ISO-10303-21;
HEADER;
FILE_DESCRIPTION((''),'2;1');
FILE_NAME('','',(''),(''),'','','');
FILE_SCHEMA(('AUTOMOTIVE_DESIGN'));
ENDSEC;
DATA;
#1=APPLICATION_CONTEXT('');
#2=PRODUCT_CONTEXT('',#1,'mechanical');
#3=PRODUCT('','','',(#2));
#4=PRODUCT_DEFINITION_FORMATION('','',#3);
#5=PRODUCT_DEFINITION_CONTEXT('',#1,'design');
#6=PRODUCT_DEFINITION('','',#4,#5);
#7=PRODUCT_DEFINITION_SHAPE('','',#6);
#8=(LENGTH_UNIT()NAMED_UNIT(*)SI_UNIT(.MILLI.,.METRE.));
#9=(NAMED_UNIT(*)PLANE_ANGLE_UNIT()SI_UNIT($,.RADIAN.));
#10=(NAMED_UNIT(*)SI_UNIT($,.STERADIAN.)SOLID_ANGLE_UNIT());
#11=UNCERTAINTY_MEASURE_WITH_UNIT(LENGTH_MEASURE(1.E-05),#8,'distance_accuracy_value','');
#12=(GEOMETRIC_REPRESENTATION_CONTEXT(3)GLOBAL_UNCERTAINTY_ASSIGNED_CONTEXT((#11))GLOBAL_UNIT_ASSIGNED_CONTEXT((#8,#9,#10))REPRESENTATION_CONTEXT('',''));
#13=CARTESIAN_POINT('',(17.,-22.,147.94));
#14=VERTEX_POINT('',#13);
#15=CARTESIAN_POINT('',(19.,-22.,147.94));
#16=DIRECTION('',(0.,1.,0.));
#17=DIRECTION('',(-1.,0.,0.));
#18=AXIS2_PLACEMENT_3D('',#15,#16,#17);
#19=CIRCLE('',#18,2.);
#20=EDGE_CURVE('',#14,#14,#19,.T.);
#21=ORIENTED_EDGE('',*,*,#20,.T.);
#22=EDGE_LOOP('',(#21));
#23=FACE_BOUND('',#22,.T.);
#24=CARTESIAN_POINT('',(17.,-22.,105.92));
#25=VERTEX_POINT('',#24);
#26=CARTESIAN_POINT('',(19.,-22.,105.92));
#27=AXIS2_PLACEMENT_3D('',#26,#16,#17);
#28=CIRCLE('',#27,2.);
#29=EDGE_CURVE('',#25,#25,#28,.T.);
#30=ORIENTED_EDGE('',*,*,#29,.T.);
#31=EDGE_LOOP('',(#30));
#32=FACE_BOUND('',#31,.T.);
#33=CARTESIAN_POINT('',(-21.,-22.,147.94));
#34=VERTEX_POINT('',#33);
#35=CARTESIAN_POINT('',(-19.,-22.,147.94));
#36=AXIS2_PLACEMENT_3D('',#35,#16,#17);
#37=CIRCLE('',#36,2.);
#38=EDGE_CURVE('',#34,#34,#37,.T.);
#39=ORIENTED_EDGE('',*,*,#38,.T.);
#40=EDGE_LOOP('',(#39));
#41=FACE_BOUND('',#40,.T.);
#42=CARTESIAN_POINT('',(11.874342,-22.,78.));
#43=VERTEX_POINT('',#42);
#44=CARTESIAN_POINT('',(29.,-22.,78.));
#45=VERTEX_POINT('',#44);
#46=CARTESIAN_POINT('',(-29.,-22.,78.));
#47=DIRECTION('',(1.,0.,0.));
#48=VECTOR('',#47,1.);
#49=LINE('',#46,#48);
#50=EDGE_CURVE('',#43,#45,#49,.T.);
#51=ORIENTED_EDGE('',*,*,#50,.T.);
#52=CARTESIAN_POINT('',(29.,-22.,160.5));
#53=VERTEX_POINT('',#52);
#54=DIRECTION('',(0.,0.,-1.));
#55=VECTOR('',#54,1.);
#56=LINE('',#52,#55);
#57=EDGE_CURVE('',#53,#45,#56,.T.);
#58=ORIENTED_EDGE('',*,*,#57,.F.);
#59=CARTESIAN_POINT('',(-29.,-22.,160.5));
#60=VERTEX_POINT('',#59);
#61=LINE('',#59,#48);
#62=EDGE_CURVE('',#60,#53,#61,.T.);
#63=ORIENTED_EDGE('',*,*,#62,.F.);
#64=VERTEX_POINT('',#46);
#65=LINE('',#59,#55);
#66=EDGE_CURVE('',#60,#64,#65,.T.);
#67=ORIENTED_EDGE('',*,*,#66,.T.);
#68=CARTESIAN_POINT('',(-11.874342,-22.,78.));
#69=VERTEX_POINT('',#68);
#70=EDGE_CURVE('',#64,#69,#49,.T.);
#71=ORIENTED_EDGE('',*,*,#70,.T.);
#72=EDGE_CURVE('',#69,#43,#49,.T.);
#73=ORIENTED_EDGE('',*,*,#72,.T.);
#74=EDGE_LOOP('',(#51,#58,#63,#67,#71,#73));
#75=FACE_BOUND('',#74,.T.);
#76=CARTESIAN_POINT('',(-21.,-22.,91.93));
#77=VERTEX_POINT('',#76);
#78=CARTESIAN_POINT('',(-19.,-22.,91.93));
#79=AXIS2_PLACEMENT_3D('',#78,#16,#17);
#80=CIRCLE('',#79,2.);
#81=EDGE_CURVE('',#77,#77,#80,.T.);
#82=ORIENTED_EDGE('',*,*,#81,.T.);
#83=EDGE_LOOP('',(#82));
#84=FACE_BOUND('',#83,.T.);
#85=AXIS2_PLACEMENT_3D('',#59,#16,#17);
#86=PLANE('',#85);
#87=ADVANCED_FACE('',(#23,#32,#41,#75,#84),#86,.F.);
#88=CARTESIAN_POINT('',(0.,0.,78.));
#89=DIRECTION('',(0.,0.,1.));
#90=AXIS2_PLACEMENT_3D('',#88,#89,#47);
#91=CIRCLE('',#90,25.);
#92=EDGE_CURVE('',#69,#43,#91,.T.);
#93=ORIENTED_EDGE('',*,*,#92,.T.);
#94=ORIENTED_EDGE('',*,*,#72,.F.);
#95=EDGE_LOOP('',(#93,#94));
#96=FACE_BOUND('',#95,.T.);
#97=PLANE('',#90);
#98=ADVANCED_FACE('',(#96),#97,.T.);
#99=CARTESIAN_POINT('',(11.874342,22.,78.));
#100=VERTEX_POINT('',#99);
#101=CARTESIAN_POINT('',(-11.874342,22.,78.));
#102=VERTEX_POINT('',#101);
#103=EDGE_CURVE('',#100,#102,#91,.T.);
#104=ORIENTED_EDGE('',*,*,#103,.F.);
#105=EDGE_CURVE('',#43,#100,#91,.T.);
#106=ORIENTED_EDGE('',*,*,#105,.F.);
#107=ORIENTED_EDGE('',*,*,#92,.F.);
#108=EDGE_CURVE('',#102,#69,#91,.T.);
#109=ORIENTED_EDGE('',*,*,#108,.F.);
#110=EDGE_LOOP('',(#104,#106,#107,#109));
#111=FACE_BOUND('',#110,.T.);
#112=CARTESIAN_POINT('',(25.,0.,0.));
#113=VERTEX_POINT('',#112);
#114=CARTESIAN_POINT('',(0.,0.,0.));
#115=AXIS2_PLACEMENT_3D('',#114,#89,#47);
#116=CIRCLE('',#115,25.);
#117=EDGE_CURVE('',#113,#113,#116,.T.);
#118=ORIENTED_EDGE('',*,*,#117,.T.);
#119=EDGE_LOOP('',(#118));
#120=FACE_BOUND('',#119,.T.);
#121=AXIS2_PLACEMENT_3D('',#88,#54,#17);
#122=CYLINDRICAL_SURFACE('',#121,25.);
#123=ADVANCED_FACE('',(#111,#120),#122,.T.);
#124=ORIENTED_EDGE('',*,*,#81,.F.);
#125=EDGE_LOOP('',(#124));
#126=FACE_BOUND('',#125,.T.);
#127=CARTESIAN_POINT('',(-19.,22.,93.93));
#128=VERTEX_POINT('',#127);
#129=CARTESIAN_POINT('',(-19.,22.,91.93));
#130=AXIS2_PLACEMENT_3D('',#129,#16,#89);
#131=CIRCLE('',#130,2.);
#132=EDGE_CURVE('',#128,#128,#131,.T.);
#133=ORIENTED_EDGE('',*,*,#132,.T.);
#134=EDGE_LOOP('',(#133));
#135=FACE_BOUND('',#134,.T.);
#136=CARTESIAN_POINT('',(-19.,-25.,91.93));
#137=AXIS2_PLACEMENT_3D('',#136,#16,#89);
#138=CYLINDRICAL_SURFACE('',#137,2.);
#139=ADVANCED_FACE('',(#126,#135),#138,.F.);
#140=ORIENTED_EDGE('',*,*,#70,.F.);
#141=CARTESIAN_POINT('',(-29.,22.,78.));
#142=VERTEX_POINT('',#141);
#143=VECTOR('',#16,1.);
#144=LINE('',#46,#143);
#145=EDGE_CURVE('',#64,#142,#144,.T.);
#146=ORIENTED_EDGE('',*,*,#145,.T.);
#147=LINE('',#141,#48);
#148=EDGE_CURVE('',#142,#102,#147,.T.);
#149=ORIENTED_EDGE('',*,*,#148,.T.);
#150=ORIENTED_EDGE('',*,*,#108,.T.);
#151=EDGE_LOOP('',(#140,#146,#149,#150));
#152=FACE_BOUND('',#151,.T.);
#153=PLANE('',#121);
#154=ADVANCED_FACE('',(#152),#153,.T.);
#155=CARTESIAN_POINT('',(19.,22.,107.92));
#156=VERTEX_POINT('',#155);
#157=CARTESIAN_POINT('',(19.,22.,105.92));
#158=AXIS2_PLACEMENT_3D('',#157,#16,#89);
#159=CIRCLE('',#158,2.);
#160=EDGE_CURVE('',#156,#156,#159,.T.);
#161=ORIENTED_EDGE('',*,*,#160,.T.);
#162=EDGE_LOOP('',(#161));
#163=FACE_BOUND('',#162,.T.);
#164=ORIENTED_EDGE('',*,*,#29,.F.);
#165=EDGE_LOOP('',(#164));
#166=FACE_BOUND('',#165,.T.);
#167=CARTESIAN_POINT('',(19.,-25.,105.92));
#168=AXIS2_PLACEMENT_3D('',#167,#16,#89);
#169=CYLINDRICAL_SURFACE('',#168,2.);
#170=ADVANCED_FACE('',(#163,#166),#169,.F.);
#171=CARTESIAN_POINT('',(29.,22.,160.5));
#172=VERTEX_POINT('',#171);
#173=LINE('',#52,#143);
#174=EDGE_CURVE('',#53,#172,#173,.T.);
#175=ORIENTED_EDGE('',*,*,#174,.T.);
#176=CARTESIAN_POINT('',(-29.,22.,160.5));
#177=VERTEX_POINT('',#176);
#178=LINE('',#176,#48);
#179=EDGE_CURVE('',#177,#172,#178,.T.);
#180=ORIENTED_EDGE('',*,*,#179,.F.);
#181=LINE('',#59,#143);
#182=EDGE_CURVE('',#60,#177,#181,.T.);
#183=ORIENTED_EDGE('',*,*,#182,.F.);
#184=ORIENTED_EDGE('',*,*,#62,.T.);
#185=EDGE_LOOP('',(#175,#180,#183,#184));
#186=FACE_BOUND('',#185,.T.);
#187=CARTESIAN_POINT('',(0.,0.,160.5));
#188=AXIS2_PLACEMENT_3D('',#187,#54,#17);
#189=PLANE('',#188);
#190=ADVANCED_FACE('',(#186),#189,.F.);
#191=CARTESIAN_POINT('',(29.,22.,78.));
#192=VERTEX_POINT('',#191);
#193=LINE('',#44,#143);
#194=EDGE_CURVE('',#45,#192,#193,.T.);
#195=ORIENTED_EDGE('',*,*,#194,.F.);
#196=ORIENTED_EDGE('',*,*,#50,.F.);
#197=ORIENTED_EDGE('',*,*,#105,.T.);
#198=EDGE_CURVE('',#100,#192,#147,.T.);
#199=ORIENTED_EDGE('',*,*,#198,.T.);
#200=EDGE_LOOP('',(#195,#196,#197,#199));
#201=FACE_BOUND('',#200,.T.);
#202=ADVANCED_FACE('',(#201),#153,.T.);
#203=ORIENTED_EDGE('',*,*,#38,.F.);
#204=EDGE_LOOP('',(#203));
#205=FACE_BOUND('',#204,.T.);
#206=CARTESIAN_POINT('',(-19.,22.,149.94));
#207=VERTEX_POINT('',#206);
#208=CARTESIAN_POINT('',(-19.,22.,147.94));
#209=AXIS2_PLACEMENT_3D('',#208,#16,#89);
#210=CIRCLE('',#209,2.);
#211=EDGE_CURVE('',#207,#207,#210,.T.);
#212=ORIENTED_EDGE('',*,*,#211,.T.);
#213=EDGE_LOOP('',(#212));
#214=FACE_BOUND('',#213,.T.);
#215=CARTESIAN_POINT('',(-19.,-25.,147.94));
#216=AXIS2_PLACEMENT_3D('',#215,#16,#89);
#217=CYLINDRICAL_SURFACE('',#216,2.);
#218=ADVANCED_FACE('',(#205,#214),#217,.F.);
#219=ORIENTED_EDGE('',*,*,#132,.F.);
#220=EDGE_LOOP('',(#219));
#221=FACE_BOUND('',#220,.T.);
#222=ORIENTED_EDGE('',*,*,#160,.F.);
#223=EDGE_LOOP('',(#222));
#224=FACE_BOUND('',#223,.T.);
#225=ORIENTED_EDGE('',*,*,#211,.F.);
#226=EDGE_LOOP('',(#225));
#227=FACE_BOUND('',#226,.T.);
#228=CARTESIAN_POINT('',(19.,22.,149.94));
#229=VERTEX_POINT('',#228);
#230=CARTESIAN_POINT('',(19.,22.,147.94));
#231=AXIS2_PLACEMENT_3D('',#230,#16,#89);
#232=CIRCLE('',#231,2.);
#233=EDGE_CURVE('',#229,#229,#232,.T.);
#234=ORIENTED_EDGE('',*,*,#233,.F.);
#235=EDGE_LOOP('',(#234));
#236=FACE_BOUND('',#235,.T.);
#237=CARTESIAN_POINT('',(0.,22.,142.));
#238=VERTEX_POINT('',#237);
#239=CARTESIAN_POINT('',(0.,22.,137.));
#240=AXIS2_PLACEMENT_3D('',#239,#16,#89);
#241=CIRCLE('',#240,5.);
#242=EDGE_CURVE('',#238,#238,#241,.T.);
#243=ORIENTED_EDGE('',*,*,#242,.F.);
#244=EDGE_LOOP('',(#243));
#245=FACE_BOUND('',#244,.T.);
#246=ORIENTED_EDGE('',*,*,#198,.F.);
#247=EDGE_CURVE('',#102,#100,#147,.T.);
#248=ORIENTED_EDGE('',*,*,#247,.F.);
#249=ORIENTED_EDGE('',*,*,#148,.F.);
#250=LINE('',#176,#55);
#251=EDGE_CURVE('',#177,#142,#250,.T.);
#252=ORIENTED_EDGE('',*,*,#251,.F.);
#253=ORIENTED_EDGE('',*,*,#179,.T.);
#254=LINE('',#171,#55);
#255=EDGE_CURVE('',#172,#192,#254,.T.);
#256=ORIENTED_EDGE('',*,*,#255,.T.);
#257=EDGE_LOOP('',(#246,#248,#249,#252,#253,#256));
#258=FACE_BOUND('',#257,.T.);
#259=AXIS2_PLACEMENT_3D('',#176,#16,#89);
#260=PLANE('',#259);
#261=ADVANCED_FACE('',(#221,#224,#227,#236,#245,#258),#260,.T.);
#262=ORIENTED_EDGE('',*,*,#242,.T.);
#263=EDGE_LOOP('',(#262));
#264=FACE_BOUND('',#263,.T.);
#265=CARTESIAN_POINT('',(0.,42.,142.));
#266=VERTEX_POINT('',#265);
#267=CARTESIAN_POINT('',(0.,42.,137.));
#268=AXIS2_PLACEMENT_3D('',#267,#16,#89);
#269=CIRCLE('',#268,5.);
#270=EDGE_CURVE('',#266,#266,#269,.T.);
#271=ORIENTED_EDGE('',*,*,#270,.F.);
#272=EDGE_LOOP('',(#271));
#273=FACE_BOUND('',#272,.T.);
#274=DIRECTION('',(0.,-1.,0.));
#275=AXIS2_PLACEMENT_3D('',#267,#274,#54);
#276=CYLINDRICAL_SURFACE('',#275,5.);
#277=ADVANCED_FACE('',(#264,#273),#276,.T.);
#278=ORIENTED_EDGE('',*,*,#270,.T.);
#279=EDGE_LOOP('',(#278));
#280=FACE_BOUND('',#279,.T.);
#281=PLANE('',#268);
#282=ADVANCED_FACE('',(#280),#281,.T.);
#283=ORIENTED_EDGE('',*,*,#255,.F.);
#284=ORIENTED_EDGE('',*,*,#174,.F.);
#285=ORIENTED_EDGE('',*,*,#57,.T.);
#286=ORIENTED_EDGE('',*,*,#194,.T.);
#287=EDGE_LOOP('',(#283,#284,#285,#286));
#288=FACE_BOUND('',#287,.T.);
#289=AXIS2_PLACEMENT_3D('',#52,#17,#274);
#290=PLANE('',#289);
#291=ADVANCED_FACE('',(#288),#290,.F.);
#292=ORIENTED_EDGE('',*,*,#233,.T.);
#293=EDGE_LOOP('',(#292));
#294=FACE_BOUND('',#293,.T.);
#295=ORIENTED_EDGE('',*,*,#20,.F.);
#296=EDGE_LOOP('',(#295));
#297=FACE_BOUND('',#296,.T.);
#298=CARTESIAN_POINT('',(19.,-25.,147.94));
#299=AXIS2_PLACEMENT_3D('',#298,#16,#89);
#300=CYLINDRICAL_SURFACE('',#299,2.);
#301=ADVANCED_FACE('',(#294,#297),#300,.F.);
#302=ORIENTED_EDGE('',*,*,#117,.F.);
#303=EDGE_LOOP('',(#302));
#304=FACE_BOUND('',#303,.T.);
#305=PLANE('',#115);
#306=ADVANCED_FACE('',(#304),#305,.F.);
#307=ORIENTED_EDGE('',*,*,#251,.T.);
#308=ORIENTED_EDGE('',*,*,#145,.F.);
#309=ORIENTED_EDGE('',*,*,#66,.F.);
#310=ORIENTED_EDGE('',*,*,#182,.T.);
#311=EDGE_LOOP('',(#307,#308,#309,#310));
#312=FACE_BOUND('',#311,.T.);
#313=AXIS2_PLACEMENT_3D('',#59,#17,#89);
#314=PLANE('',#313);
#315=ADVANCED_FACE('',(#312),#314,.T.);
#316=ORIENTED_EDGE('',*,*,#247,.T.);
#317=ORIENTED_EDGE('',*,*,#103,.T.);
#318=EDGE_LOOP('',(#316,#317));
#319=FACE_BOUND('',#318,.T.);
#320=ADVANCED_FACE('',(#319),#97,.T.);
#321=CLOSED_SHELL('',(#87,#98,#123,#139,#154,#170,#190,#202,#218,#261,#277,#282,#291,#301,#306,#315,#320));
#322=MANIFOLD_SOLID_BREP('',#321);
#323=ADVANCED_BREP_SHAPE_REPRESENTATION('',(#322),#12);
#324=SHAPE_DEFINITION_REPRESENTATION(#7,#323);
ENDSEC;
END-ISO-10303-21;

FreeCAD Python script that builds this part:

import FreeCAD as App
import Part
import Sketcher

doc = App.newDocument("Part")
params = doc.addObject("Spreadsheet::Sheet", "Params")
for row, (alias, value) in enumerate([
    ("sketch1_diameter", "50 mm"),
    ("pad1_length", "78 mm"),
    ("sketch2_width", "58 mm"),
    ("sketch2_height", "44 mm"),
    ("pad2_length", "82.5 mm"),
    ("sketch3_diameter", "10 mm"),
    ("pad3_length", "20 mm"),
    ("sketch4_diameter", "4 mm"),
], start=1):
    params.set(f"A{row}", alias)
    params.set(f"B{row}", "=" + value)
    params.setAlias(f"B{row}", alias)

body = doc.addObject("PartDesign::Body", "Body")

sketch1 = body.newObject("Sketcher::SketchObject", "Sketch")
sketch1.AttachmentSupport = (doc.getObject("XY_Plane"), [""])
sketch1.MapMode = "FlatFace"
sketch1.addGeometry(Part.Circle(App.Vector(0, 0, 0), App.Vector(0, 0, 1), 25), False)
sketch1.addConstraint([
    Sketcher.Constraint("Coincident", 0, 3, -1, 1),
    Sketcher.Constraint("Diameter", 0, 50.0),
])
sketch1.setExpression("Constraints[1]", "Params.sketch1_diameter")
pad1 = body.newObject("PartDesign::Pad", "Pad")
pad1.Profile = sketch1
pad1.setExpression("Length", "Params.pad1_length")

sketch2 = body.newObject("Sketcher::SketchObject", "Sketch001")
sketch2.AttachmentSupport = (doc.getObject("XY_Plane"), [""])
sketch2.MapMode = "FlatFace"
sketch2.AttachmentOffset = App.Placement(App.Vector(0, 0, 78), App.Rotation())
sketch2.addGeometry([
    Part.LineSegment(App.Vector(-29, 22, 0), App.Vector(-29, -22, 0)),
    Part.LineSegment(App.Vector(-29, -22, 0), App.Vector(29, -22, 0)),
    Part.LineSegment(App.Vector(29, -22, 0), App.Vector(29, 22, 0)),
    Part.LineSegment(App.Vector(29, 22, 0), App.Vector(-29, 22, 0)),
], False)
sketch2.addConstraint([
    Sketcher.Constraint("Coincident", 0, 2, 1, 1),
    Sketcher.Constraint("Coincident", 1, 2, 2, 1),
    Sketcher.Constraint("Coincident", 2, 2, 3, 1),
    Sketcher.Constraint("Coincident", 3, 2, 0, 1),
    Sketcher.Constraint("Vertical", 0),
    Sketcher.Constraint("Horizontal", 1),
    Sketcher.Constraint("Vertical", 2),
    Sketcher.Constraint("Horizontal", 3),
    Sketcher.Constraint("Symmetric", 0, 2, 2, 2, -1, 1),
    Sketcher.Constraint("DistanceX", 1, 1, 1, 2, 58.0),
    Sketcher.Constraint("DistanceY", 0, 2, 0, 1, 44.0),
])
sketch2.setExpression("Constraints[9]", "Params.sketch2_width")
sketch2.setExpression("Constraints[10]", "Params.sketch2_height")
pad2 = body.newObject("PartDesign::Pad", "Pad001")
pad2.Profile = sketch2
pad2.setExpression("Length", "Params.pad2_length")

sketch3 = body.newObject("Sketcher::SketchObject", "Sketch002")
sketch3.AttachmentSupport = (doc.getObject("XZ_Plane"), [""])
sketch3.MapMode = "FlatFace"
sketch3.AttachmentOffset = App.Placement(App.Vector(0, 0, -22), App.Rotation())
sketch3.addGeometry(Part.Circle(App.Vector(0, 137, 0), App.Vector(0, 0, 1), 5), False)
sketch3.addConstraint([
    Sketcher.Constraint("PointOnObject", 0, 3, -2),
    Sketcher.Constraint("Diameter", 0, 10.0),
    Sketcher.Constraint("DistanceY", -1, 1, 0, 3, 137.0),
])
sketch3.setExpression("Constraints[1]", "Params.sketch3_diameter")
pad3 = body.newObject("PartDesign::Pad", "Pad002")
pad3.Profile = sketch3
pad3.setExpression("Length", "Params.pad3_length")
pad3.Reversed = True

sketch4 = body.newObject("Sketcher::SketchObject", "Sketch003")
sketch4.AttachmentSupport = (doc.getObject("XZ_Plane"), [""])
sketch4.MapMode = "FlatFace"
sketch4.AttachmentOffset = App.Placement(App.Vector(0, 0, -22), App.Rotation())
sketch4.addGeometry([
    Part.Circle(App.Vector(19, 147.9, 0), App.Vector(0, 0, 1), 2),
    Part.Circle(App.Vector(19, 105.9, 0), App.Vector(0, 0, 1), 2),
    Part.Circle(App.Vector(-19, 147.9, 0), App.Vector(0, 0, 1), 2),
    Part.Circle(App.Vector(-19, 91.9, 0), App.Vector(0, 0, 1), 2),
], False)
sketch4.addConstraint([
    Sketcher.Constraint("Equal", 0, 1),
    Sketcher.Constraint("Equal", 1, 2),
    Sketcher.Constraint("Equal", 2, 3),
    Sketcher.Constraint("Symmetric", 0, 3, 2, 3, -2),
    Sketcher.Constraint("Vertical", 0, 3, 1, 3),
    Sketcher.Constraint("Vertical", 2, 3, 3, 3),
    Sketcher.Constraint("Diameter", 0, 4.0),
    Sketcher.Constraint("DistanceX", -1, 1, 0, 3, 19.0),
    Sketcher.Constraint("DistanceY", -1, 1, 0, 3, 147.94),
    Sketcher.Constraint("DistanceY", -1, 1, 1, 3, 105.92),
    Sketcher.Constraint("DistanceY", -1, 1, 3, 3, 91.93),
])
sketch4.setExpression("Constraints[6]", "Params.sketch4_diameter")
pocket1 = body.newObject("PartDesign::Pocket", "Pocket")
pocket1.Profile = sketch4
pocket1.Type = "ThroughAll"
pocket1.Reversed = True

doc.recompute()
